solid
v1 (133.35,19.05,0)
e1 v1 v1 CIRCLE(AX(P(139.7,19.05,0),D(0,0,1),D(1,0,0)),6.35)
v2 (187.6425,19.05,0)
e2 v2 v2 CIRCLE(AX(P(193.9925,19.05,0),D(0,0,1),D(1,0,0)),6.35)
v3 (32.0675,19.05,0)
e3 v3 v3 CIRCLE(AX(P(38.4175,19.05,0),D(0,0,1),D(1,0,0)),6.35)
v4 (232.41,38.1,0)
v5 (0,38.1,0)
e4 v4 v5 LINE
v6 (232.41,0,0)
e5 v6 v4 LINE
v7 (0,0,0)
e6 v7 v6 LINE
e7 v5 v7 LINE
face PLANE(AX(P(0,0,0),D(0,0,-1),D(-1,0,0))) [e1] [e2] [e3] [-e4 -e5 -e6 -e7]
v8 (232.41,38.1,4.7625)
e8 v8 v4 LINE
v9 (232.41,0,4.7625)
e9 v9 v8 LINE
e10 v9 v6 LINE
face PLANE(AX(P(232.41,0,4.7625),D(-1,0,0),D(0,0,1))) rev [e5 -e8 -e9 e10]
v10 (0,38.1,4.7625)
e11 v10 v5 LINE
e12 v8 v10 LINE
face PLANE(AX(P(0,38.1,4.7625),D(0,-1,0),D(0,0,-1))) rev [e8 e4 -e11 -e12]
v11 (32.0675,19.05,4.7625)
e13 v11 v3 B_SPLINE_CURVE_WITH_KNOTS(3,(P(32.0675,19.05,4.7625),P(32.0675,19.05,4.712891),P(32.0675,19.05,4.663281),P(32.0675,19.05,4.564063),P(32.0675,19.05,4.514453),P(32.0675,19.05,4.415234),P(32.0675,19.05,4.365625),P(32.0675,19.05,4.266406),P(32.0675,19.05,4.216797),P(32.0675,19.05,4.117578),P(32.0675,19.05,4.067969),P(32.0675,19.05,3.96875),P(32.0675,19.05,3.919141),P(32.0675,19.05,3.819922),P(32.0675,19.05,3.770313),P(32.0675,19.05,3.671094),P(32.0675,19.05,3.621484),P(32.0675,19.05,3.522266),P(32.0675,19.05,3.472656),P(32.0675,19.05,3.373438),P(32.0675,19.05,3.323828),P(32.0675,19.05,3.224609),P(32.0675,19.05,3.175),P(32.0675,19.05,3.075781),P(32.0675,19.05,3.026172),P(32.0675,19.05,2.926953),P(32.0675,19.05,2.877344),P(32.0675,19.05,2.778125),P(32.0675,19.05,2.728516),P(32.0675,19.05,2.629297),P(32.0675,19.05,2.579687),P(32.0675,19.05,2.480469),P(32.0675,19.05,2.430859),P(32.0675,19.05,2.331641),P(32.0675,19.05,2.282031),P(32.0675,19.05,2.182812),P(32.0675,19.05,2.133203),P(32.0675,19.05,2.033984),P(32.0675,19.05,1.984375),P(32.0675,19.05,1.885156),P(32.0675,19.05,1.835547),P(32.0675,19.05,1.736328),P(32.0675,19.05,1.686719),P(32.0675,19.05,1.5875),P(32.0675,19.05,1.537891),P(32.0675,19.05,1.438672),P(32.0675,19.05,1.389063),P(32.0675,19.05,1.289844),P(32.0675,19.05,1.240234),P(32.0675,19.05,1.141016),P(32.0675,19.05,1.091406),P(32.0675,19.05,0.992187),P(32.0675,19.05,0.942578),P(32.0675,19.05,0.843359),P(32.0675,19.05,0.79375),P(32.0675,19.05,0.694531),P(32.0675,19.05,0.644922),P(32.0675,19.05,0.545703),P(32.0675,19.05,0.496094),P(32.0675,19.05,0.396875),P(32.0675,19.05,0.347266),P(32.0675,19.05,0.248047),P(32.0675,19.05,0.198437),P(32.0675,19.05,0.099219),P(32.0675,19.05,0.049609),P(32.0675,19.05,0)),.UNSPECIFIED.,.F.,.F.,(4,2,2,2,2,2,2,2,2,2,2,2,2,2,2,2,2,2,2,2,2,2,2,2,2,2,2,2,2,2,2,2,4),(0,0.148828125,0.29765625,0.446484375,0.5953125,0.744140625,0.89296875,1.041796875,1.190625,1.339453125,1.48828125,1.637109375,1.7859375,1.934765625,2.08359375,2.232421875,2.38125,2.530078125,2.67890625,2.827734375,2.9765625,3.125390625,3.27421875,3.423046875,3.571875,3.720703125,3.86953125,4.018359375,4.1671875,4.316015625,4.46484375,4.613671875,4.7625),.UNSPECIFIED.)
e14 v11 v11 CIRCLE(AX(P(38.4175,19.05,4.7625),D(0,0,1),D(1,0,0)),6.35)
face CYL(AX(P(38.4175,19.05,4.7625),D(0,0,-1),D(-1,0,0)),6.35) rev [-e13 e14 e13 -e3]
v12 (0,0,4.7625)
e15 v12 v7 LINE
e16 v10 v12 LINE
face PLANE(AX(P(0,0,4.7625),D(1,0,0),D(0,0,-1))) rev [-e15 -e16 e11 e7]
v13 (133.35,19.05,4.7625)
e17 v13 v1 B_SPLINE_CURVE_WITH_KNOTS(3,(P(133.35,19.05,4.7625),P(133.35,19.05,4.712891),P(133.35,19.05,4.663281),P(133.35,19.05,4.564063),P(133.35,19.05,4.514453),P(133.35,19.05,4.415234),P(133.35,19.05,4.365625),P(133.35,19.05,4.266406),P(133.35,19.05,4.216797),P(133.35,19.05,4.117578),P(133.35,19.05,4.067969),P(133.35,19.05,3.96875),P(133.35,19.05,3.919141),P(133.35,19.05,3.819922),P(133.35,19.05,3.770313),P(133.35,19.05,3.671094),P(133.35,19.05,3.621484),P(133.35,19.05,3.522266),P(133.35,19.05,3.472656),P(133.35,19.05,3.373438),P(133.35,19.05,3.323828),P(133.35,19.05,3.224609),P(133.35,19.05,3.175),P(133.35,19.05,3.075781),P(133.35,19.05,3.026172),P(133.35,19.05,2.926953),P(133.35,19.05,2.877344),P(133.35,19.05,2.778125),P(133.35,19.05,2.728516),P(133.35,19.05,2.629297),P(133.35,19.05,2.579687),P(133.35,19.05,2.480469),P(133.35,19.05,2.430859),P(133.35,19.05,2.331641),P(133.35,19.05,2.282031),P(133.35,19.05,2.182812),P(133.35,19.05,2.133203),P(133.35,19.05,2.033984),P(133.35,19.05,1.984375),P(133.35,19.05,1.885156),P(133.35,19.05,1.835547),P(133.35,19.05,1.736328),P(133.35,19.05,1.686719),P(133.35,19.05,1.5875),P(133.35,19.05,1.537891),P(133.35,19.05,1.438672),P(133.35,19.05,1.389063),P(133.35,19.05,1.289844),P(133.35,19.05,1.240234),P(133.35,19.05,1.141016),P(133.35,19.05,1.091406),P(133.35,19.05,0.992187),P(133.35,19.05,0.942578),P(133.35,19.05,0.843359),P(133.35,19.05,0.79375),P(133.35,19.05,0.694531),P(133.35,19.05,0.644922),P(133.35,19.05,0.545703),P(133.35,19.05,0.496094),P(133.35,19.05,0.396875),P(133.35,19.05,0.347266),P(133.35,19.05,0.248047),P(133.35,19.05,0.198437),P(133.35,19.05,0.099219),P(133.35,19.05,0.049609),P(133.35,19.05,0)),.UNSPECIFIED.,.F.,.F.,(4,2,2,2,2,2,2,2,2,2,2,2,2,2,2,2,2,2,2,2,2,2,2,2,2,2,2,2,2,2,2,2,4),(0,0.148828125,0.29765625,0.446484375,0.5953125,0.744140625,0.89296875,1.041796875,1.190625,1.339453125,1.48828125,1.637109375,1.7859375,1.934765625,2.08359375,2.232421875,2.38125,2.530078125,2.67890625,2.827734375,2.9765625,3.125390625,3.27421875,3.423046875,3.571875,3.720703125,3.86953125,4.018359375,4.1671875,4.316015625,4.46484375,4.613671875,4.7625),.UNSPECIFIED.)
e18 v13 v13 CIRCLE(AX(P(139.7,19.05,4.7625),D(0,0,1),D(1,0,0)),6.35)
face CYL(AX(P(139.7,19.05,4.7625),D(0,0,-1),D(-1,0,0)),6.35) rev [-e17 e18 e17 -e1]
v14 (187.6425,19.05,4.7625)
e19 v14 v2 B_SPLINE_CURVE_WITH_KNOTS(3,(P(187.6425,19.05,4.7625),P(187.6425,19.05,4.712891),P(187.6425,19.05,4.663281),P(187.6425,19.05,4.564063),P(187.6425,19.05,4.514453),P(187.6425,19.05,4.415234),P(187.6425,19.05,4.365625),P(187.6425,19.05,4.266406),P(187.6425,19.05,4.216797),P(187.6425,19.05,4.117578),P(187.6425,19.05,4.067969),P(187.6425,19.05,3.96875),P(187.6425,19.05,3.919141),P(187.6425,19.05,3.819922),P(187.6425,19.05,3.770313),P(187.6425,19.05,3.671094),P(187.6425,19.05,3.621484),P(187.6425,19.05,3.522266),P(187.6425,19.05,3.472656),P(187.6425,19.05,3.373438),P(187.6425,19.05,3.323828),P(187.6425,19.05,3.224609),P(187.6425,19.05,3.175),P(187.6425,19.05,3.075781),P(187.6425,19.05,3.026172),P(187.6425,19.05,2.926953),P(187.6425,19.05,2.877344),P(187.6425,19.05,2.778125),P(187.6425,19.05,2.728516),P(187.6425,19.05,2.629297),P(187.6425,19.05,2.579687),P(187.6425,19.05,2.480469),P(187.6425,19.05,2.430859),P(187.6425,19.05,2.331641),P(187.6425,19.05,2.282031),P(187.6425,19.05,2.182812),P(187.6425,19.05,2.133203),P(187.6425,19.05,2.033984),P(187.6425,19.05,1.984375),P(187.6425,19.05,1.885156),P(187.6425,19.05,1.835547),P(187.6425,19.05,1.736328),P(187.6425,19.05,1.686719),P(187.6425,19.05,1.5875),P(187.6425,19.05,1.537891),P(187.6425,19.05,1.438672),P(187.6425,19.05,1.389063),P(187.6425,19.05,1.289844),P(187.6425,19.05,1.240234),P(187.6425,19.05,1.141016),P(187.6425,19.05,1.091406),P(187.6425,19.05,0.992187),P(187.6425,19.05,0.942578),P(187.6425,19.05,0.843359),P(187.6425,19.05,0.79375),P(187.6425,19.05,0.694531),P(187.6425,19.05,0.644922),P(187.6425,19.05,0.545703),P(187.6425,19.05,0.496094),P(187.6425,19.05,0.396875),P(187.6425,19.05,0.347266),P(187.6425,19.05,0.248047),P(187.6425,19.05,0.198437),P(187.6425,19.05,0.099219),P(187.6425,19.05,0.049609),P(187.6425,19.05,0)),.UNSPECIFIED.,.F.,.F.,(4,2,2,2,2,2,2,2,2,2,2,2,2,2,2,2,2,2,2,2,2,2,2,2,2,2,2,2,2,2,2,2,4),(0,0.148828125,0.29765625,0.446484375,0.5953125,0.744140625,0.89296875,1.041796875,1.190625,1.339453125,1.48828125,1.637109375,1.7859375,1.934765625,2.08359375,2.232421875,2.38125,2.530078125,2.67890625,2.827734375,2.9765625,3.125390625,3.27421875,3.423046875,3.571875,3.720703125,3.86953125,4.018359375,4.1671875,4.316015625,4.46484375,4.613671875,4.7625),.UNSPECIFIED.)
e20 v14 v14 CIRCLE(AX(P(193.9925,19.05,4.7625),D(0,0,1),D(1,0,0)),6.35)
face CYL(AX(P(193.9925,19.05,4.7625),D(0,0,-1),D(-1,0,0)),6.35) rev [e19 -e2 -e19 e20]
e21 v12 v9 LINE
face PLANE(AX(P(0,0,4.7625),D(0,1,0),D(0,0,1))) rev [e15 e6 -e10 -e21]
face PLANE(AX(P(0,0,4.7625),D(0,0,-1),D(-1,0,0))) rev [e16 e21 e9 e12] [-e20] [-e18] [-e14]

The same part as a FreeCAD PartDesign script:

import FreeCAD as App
import Part
import Sketcher

V = App.Vector
Q = App.Units.Quantity


def add_polygon(sketch, points):
    """Adds a closed chain of lines whose ends are joined by coincident constraints."""
    first, n = sketch.GeometryCount, len(points)
    for a, b in zip(points, points[1:] + points[:1]):
        sketch.addGeometry(Part.LineSegment(App.Vector(*a, 0), App.Vector(*b, 0)), False)
    for i in range(n):
        sketch.addConstraint(Sketcher.Constraint("Coincident", first + i, 2, first + (i + 1) % n, 1))

doc = App.newDocument("Part")
body = doc.addObject("PartDesign::Body", "Body")

sketch1 = doc.addObject("Sketcher::SketchObject", "Sketch")
body.addObject(sketch1)
sketch1.AttachmentSupport = (doc.XY_Plane, [""])
sketch1.MapMode = "FlatFace"
add_polygon(sketch1, [(0, 38), (0, 0), (232, 0), (232, 38)])
sketch1.addGeometry(Part.Circle(V(38, 19, 0), V(0, 0, 1), 6), False)
sketch1.addGeometry(Part.Circle(V(140, 19, 0), V(0, 0, 1), 6), False)
sketch1.addGeometry(Part.Circle(V(194, 19, 0), V(0, 0, 1), 6), False)
sketch1.addConstraint(Sketcher.Constraint("Vertical", 0))
sketch1.addConstraint(Sketcher.Constraint("Horizontal", 1))
sketch1.addConstraint(Sketcher.Constraint("Vertical", 2))
sketch1.addConstraint(Sketcher.Constraint("Horizontal", 3))
sketch1.addConstraint(Sketcher.Constraint("Coincident", 0, 2, -1, 1))
sketch1.addConstraint(Sketcher.Constraint("Equal", 4, 5))
sketch1.addConstraint(Sketcher.Constraint("Equal", 5, 6))
sketch1.addConstraint(Sketcher.Constraint("Horizontal", 4, 3, 5, 3))
sketch1.addConstraint(Sketcher.Constraint("Horizontal", 5, 3, 6, 3))
sketch1.addConstraint(Sketcher.Constraint("Diameter", 4, Q("0.5 in")))
sketch1.addConstraint(Sketcher.Constraint("DistanceY", 0, 2, 0, 1, Q("1.5 in")))
sketch1.addConstraint(Sketcher.Constraint("DistanceX", 1, 1, 1, 2, Q("9.15 in")))
sketch1.addConstraint(Sketcher.Constraint("DistanceX", -1, 1, 5, 3, Q("5.5 in")))
sketch1.addConstraint(Sketcher.Constraint("DistanceY", -1, 1, 4, 3, Q("0.75 in")))
sketch1.addConstraint(Sketcher.Constraint("DistanceX", 4, 3, 6, 3, Q("6.125 in")))
sketch1.addConstraint(Sketcher.Constraint("DistanceX", -1, 1, 4, 3, Q("1.5125 in")))
pad1 = doc.addObject("PartDesign::Pad", "Pad")
body.addObject(pad1)
pad1.Profile = sketch1
pad1.Length = Q("0.1875 in")

doc.recompute()
